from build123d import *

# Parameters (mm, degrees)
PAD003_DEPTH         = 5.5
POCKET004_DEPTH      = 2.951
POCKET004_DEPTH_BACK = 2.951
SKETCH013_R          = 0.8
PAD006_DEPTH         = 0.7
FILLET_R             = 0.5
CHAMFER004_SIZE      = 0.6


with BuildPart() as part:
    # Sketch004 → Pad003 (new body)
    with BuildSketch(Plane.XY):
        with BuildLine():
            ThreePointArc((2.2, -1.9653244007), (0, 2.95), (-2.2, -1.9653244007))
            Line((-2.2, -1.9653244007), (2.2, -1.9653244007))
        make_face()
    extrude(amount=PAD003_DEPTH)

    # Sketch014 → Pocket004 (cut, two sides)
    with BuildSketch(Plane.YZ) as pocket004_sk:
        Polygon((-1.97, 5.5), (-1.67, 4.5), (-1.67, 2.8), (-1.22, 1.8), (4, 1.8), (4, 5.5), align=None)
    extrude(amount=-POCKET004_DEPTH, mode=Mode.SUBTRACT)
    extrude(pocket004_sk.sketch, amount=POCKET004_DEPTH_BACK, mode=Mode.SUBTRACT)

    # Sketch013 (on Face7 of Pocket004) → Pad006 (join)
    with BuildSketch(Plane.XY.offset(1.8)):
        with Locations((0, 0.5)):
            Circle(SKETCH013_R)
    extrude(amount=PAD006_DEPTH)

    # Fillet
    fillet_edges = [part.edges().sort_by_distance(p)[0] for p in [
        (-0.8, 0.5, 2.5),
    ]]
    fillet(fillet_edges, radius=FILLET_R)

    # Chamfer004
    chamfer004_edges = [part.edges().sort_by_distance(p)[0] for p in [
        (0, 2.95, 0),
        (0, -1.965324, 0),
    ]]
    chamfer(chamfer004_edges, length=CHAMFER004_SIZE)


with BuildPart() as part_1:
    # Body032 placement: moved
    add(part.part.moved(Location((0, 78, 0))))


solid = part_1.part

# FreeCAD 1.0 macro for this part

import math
import FreeCAD as App
import Part
import Sketcher

V = App.Vector
Q = App.Units.Quantity


def edges_at(feature, points):
    """Names of the edges that pass closest to the given points."""
    edges = feature.Shape.Edges
    near = lambda p: min(range(len(edges)), key=lambda i: edges[i].distToShape(Part.Vertex(*p))[0])
    return sorted({f"Edge{near(p) + 1}" for p in points})

doc = App.newDocument("Part")
body = doc.addObject("PartDesign::Body", "Body")

# Sketch on XY plane
sketch1 = body.newObject("Sketcher::SketchObject", "Sketch")
sketch1.AttachmentSupport = (doc.getObject("XY_Plane"), [""])
sketch1.MapMode = "FlatFace"
sketch1.addGeometry([
    Part.ArcOfCircle(Part.Circle(V(0, 0, 0), V(0, 0, 1), 3), math.radians(-42), math.radians(222)),
    Part.LineSegment(V(-2.2, -2, 0), V(2.2, -2, 0)),
], False)
sketch1.addConstraint([
    Sketcher.Constraint("Coincident", 0, 1, 1, 2),
    Sketcher.Constraint("Coincident", 1, 1, 0, 2),
    Sketcher.Constraint("Horizontal", 1),
    Sketcher.Constraint("Coincident", 0, 3, -1, 1),
    Sketcher.Constraint("Radius", 0, Q("2.95 mm")),
    Sketcher.Constraint("DistanceX", 1, 1, 1, 2, Q("4.4 mm")),
])
pad1 = body.newObject("PartDesign::Pad", "Pad")
pad1.Profile = sketch1
pad1.Length = 5.5

# Sketch on YZ plane
sketch2 = body.newObject("Sketcher::SketchObject", "Sketch001")
sketch2.AttachmentSupport = (doc.getObject("YZ_Plane"), [""])
sketch2.MapMode = "FlatFace"
sketch2.addGeometry([
    Part.LineSegment(V(-2, 5.5, 0), V(-1.7, 4.5, 0)),  # 0
    Part.LineSegment(V(-1.7, 4.5, 0), V(-1.7, 2.8, 0)),  # 1
    Part.LineSegment(V(-1.7, 2.8, 0), V(-1.2, 1.8, 0)),  # 2
    Part.LineSegment(V(-1.2, 1.8, 0), V(4, 1.8, 0)),  # 3
    Part.LineSegment(V(4, 1.8, 0), V(4, 5.5, 0)),  # 4
    Part.LineSegment(V(4, 5.5, 0), V(-2, 5.5, 0)),  # 5
], False)
sketch2.addConstraint([
    Sketcher.Constraint("Coincident", 0, 2, 1, 1),
    Sketcher.Constraint("Coincident", 1, 2, 2, 1),
    Sketcher.Constraint("Coincident", 2, 2, 3, 1),
    Sketcher.Constraint("Coincident", 3, 2, 4, 1),
    Sketcher.Constraint("Coincident", 4, 2, 5, 1),
    Sketcher.Constraint("Coincident", 5, 2, 0, 1),
    Sketcher.Constraint("Vertical", 1),
    Sketcher.Constraint("Horizontal", 3),
    Sketcher.Constraint("Vertical", 4),
    Sketcher.Constraint("Horizontal", 5),
    Sketcher.Constraint("DistanceY", 1, 2, 1, 1, Q("1.7 mm")),
    Sketcher.Constraint("DistanceY", 4, 1, 4, 2, Q("3.7 mm")),
    Sketcher.Constraint("DistanceX", -1, 1, 3, 2, Q("4 mm")),
    Sketcher.Constraint("DistanceY", 2, 2, 1, 2, Q("1 mm")),
    Sketcher.Constraint("DistanceX", 3, 1, 3, 2, Q("5.22 mm")),
    Sketcher.Constraint("DistanceX", 5, 2, 5, 1, Q("5.97 mm")),
    Sketcher.Constraint("DistanceY", -1, 1, 0, 2, Q("4.5 mm")),
    Sketcher.Constraint("DistanceX", 5, 2, 0, 2, Q("0.3 mm")),
])
pocket1 = body.newObject("PartDesign::Pocket", "Pocket")
pocket1.Profile = sketch2
pocket1.Type = "ThroughAll"
pocket1.Midplane = True

# Sketch on XY plane
sketch3 = body.newObject("Sketcher::SketchObject", "Sketch002")
sketch3.AttachmentSupport = (doc.getObject("XY_Plane"), [""])
sketch3.MapMode = "FlatFace"
sketch3.AttachmentOffset = App.Placement(V(0, 0, 1.8), App.Rotation())
sketch3.addGeometry(Part.Circle(V(0, 0.5, 0), V(0, 0, 1), 0.8), False)
sketch3.addConstraint([
    Sketcher.Constraint("PointOnObject", 0, 3, -2),
    Sketcher.Constraint("Diameter", 0, Q("1.6 mm")),
    Sketcher.Constraint("DistanceY", -1, 1, 0, 3, Q("0.5 mm")),
])
pad2 = body.newObject("PartDesign::Pad", "Pad001")
pad2.Profile = sketch3
pad2.Length = 0.7
doc.recompute()

fillet = body.newObject("PartDesign::Fillet", "Fillet")
fillet.Base = (pad2, edges_at(pad2, [(-0.8, 0.5, 2.5)]))
fillet.Radius = 0.5
doc.recompute()

chamfer = body.newObject("PartDesign::Chamfer", "Chamfer")
chamfer.Base = (fillet, edges_at(fillet, [(0, 2.95, 0), (0, -1.965, 0)]))
chamfer.Size = 0.6
body2 = doc.addObject("PartDesign::Body", "Body001")
doc.recompute()

body.Placement = App.Placement(V(0, 78, 0), App.Rotation(V(0, 0, 1), 0))
boolean = body2.newObject("PartDesign::Boolean", "Boolean")
boolean.Type = "Fuse"
boolean.addObjects([body])

doc.recompute()
